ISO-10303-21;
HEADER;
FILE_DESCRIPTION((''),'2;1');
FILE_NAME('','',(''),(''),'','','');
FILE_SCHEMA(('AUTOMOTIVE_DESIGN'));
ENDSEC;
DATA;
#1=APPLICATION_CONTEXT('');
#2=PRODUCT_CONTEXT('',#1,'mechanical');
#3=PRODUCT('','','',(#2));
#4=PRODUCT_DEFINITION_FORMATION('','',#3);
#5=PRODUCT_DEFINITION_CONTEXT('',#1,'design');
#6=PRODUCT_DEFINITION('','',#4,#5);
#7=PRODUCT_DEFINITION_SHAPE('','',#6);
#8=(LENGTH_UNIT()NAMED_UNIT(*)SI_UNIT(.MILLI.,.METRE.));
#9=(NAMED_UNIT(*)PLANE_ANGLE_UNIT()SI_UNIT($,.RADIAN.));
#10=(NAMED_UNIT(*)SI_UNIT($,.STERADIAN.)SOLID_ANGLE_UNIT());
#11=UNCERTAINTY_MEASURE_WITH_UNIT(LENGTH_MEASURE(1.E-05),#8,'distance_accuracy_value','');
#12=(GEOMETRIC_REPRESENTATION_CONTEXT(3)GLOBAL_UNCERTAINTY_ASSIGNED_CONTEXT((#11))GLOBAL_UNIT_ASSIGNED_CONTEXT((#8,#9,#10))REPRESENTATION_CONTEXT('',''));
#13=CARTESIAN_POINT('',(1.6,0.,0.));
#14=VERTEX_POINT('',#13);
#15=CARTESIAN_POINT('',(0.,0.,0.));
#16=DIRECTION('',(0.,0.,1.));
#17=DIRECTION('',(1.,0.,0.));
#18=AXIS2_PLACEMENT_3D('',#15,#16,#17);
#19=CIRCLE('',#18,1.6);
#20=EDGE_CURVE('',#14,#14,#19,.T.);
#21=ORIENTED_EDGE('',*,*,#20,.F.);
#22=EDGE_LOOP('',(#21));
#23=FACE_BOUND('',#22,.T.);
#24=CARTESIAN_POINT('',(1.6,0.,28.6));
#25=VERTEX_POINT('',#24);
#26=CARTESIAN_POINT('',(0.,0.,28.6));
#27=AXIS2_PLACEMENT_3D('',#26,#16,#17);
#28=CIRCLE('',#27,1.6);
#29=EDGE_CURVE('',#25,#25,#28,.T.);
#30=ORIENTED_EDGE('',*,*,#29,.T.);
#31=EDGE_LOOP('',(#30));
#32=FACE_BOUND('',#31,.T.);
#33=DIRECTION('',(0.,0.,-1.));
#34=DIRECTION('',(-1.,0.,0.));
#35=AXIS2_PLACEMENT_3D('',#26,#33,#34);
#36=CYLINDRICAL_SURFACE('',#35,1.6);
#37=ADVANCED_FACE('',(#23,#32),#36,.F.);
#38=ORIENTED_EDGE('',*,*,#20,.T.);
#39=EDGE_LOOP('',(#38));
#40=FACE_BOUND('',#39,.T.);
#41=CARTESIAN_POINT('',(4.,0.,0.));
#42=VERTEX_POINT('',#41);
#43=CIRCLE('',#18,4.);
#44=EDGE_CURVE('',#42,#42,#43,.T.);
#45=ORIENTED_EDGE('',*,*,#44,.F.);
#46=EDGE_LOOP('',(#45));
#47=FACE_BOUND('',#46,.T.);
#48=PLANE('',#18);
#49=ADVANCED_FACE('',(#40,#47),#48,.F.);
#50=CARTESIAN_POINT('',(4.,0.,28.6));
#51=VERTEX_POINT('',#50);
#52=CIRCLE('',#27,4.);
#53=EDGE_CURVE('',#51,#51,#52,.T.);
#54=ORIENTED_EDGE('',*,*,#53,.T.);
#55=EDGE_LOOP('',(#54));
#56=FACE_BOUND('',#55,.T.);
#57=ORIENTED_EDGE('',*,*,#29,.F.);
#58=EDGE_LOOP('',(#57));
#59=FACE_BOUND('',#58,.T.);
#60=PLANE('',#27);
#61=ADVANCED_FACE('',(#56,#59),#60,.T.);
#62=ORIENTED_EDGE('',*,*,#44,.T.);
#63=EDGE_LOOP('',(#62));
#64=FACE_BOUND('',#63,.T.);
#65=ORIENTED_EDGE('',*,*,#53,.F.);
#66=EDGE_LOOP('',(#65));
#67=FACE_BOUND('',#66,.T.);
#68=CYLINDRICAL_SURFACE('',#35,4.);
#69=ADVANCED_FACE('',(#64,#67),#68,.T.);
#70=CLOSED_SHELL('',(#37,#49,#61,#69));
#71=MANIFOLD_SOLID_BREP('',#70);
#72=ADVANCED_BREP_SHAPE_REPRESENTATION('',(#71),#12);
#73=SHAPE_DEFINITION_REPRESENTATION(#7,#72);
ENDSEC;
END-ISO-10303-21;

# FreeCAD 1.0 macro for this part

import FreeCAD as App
import Part
import Sketcher
Q = App.Units.Quantity

doc = App.newDocument("Part")
body = doc.addObject("PartDesign::Body", "Body")

sketch1 = body.newObject("Sketcher::SketchObject", "Sketch")
sketch1.AttachmentSupport = (doc.getObject("XY_Plane"), [""])
sketch1.MapMode = "FlatFace"
sketch1.addGeometry(Part.Circle(App.Vector(0, 0, 0), App.Vector(0, 0, 1), 4), False)
sketch1.addGeometry(Part.Circle(App.Vector(0, 0, 0), App.Vector(0, 0, 1), 1.6), False)
sketch1.addConstraint(Sketcher.Constraint("Coincident", 0, 3, -1, 1))
sketch1.addConstraint(Sketcher.Constraint("Coincident", 1, 3, -1, 1))
sketch1.addConstraint(Sketcher.Constraint("Diameter", 0, Q("8 mm")))
sketch1.addConstraint(Sketcher.Constraint("Diameter", 1, Q("3.2 mm")))
pad1 = body.newObject("PartDesign::Pad", "Pad")
pad1.Profile = sketch1
pad1.Length = 28.6

doc.recompute()
